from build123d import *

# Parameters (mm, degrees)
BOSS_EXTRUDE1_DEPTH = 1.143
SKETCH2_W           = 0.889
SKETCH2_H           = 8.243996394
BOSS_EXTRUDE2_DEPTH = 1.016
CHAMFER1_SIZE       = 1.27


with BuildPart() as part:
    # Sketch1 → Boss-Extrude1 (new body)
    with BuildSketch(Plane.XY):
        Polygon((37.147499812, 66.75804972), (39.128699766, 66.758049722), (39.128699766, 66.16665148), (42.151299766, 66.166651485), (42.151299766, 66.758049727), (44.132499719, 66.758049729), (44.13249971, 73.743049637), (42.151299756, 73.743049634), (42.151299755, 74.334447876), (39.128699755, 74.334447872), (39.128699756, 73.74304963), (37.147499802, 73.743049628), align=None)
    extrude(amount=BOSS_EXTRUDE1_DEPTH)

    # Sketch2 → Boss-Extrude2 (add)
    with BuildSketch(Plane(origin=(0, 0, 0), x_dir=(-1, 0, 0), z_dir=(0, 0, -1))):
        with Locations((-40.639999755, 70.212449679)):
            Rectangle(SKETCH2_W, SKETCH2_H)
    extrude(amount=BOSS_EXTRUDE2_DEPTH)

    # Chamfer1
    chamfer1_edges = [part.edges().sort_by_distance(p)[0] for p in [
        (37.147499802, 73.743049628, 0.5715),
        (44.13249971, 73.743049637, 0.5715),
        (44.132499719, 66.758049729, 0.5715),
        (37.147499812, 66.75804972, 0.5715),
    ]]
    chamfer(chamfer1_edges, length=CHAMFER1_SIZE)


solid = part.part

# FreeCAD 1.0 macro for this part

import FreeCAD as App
import Part
import Sketcher

V = App.Vector
Q = App.Units.Quantity


def edges_at(feature, points):
    """Names of the edges that pass closest to the given points."""
    edges = feature.Shape.Edges
    near = lambda p: min(range(len(edges)), key=lambda i: edges[i].distToShape(Part.Vertex(*p))[0])
    return sorted({f"Edge{near(p) + 1}" for p in points})


def add_polygon(sketch, points):
    """Adds a closed chain of lines whose ends are joined by coincident constraints."""
    first, n = sketch.GeometryCount, len(points)
    for a, b in zip(points, points[1:] + points[:1]):
        sketch.addGeometry(Part.LineSegment(App.Vector(*a, 0), App.Vector(*b, 0)), False)
    for i in range(n):
        sketch.addConstraint(Sketcher.Constraint("Coincident", first + i, 2, first + (i + 1) % n, 1))

doc = App.newDocument("Part")
body = doc.addObject("PartDesign::Body", "Body")

# Sketch on XY plane
sketch1 = body.newObject("Sketcher::SketchObject", "Sketch")
sketch1.AttachmentSupport = (doc.getObject("XY_Plane"), [""])
sketch1.MapMode = "FlatFace"
add_polygon(sketch1, [(37.1, 66.8), (39.1, 66.8), (39.1, 66.2), (42.2, 66.2), (42.2, 66.8), (44.1, 66.8), (44.1, 73.7), (42.2, 73.7), (42.2, 74.3), (39.1, 74.3), (39.1, 73.7), (37.1, 73.7)])  # lines 0-11
sketch1.addConstraint([
    Sketcher.Constraint("Horizontal", 0),
    Sketcher.Constraint("Vertical", 1),
    Sketcher.Constraint("Horizontal", 2),
    Sketcher.Constraint("Vertical", 3),
    Sketcher.Constraint("Horizontal", 4),
    Sketcher.Constraint("Vertical", 5),
    Sketcher.Constraint("Horizontal", 6),
    Sketcher.Constraint("Vertical", 7),
    Sketcher.Constraint("Horizontal", 8),
    Sketcher.Constraint("Vertical", 9),
    Sketcher.Constraint("Horizontal", 10),
    Sketcher.Constraint("Vertical", 11),
    Sketcher.Constraint("Horizontal", 0, 2, 3, 2),
    Sketcher.Constraint("Horizontal", 6, 2, 9, 2),
    Sketcher.Constraint("Vertical", 3, 2, 6, 2),
    Sketcher.Constraint("Vertical", 1, 2, 8, 2),
    Sketcher.Constraint("Equal", 0, 4),
    Sketcher.Constraint("Equal", 3, 7),
    Sketcher.Constraint("DistanceX", 0, 1, 0, 2, Q("0.078 in")),
    Sketcher.Constraint("DistanceX", 2, 1, 2, 2, Q("0.119 in")),
    Sketcher.Constraint("DistanceY", 5, 1, 5, 2, Q("0.275 in")),
    Sketcher.Constraint("DistanceY", 1, 2, 1, 1, Q("0.591398 mm")),
    Sketcher.Constraint("DistanceX", -1, 1, 0, 2, Q("1.5405 in")),
    Sketcher.Constraint("DistanceY", -1, 1, 0, 2, Q("66.75805 mm")),
])
pad1 = body.newObject("PartDesign::Pad", "Pad")
pad1.Profile = sketch1
pad1.Length = Q("0.045 in")

# Sketch on XY plane
sketch2 = body.newObject("Sketcher::SketchObject", "Sketch001")
sketch2.AttachmentSupport = (doc.getObject("XY_Plane"), [""])
sketch2.MapMode = "FlatFace"
add_polygon(sketch2, [(41.1, 74.3), (41.1, 66.1), (40.2, 66.1), (40.2, 74.3)])  # lines 0-3
sketch2.addConstraint([
    Sketcher.Constraint("Vertical", 0),
    Sketcher.Constraint("Horizontal", 1),
    Sketcher.Constraint("Vertical", 2),
    Sketcher.Constraint("Horizontal", 3),
    Sketcher.Constraint("DistanceX", 1, 2, 1, 1, Q("0.035 in")),
    Sketcher.Constraint("DistanceX", -1, 1, 0, 2, Q("1.6175 in")),
    Sketcher.Constraint("DistanceY", 0, 2, 0, 1, Q("8.243996 mm")),
    Sketcher.Constraint("DistanceY", -1, 1, 0, 2, Q("66.090451 mm")),
])
pad2 = body.newObject("PartDesign::Pad", "Pad001")
pad2.Profile = sketch2
pad2.Length = Q("0.04 in")
pad2.Reversed = True
doc.recompute()

chamfer = body.newObject("PartDesign::Chamfer", "Chamfer")
chamfer.Base = (pad2, edges_at(pad2, [
    (37.147, 73.743, 0.572),
    (44.132, 73.743, 0.572),
    (44.132, 66.758, 0.572),
    (37.147, 66.758, 0.572),
]))
chamfer.Size = Q("0.05 in")

doc.recompute()
